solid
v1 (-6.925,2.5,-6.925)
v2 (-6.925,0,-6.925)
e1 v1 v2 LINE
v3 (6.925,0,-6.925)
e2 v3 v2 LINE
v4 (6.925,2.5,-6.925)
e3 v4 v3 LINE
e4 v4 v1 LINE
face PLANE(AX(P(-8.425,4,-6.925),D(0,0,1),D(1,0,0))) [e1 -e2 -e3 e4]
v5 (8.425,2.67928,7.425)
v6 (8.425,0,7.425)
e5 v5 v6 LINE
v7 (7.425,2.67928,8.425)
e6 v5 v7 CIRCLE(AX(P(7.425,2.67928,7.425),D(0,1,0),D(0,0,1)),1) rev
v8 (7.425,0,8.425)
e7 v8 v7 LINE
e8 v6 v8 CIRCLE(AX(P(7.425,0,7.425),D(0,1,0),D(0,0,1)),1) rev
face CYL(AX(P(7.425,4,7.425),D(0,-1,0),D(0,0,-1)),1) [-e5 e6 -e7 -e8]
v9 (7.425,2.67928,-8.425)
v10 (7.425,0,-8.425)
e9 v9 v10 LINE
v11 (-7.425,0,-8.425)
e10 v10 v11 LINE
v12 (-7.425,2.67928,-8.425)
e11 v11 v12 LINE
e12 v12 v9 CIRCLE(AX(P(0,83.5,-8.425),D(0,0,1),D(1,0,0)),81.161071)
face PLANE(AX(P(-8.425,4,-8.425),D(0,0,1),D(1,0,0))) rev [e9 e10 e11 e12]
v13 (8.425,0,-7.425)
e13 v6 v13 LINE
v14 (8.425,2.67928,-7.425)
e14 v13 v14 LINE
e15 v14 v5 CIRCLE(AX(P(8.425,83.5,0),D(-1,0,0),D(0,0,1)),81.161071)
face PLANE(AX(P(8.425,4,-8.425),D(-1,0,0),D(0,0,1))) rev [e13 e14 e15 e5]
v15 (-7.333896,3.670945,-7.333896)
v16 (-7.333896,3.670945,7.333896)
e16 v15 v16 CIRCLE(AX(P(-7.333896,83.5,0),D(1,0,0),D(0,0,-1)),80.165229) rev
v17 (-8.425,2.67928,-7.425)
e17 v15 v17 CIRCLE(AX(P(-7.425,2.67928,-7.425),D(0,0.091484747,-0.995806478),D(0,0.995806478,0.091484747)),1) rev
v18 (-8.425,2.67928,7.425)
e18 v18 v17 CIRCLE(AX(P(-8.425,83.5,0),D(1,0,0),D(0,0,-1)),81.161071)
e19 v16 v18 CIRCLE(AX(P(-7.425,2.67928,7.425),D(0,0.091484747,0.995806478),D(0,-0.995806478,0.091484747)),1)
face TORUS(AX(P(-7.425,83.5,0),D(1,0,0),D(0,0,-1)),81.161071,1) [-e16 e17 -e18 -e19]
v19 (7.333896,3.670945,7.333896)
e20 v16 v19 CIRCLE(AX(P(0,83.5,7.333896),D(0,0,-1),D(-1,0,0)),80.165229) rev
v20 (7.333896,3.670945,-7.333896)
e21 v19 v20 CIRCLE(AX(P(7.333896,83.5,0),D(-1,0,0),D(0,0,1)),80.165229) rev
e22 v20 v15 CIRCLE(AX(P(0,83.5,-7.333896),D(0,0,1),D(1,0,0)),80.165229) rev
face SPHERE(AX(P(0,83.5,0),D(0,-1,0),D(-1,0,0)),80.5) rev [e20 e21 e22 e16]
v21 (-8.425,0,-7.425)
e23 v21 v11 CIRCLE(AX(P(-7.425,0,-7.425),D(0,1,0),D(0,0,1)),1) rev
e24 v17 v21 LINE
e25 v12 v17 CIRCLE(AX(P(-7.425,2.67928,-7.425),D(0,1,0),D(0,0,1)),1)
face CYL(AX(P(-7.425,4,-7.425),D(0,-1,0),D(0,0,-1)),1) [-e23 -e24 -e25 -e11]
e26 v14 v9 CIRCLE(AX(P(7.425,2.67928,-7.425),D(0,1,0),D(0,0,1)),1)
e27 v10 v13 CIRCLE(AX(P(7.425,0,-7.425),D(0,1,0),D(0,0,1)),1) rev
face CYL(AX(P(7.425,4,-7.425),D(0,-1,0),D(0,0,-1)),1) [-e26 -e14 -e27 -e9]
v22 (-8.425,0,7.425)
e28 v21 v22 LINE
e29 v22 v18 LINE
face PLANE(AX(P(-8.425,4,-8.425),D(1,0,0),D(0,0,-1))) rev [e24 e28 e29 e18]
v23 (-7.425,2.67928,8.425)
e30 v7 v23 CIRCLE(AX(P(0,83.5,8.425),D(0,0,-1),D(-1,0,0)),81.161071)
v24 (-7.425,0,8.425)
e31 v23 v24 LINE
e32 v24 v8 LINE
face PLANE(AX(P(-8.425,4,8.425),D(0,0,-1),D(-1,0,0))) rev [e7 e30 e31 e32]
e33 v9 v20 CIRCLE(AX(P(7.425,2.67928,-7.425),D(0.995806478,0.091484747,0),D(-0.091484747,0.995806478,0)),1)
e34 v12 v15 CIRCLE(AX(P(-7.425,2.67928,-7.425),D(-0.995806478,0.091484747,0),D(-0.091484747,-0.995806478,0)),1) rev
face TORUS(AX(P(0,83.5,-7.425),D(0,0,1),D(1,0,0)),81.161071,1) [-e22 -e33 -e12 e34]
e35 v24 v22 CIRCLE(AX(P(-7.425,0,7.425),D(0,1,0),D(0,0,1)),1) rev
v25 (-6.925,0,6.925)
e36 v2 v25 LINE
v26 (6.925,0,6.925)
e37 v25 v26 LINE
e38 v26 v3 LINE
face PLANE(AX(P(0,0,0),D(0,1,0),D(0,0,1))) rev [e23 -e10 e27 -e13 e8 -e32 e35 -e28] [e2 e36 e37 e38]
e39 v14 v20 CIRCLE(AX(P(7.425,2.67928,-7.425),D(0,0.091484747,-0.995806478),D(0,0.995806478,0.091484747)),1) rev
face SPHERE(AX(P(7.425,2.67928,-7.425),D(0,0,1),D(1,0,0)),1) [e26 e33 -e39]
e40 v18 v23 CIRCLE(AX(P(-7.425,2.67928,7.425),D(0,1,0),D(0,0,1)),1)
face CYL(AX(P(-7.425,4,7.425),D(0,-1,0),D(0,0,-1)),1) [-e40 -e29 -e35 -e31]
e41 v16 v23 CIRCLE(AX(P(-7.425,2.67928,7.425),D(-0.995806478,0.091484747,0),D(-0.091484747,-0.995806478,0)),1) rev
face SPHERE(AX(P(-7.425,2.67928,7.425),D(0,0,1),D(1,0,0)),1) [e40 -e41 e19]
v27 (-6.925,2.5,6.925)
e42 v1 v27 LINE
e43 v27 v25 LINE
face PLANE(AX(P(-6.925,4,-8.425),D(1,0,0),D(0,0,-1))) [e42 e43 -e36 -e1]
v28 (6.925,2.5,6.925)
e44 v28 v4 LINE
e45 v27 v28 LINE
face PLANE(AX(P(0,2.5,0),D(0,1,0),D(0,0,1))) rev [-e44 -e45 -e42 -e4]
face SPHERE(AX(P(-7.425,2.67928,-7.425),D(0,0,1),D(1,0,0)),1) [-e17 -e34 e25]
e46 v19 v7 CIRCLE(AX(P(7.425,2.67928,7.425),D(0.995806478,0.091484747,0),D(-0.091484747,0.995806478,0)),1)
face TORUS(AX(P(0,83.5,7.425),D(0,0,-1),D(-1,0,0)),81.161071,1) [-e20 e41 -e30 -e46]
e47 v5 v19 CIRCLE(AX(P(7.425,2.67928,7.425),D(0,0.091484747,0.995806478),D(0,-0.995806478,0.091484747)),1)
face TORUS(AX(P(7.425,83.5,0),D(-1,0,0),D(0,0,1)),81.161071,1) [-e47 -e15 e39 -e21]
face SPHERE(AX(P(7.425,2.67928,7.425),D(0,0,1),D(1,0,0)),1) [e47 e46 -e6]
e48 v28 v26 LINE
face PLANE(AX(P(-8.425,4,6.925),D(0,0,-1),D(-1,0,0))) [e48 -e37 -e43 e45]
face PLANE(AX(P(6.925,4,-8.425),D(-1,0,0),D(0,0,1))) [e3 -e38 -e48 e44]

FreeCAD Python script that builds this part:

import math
import FreeCAD as App
import Part
import Sketcher
from FreeCAD import Vector
Q = App.Units.Quantity


def edges_at(feature, points):
    """Names of the edges that pass closest to the given points."""
    edges = feature.Shape.Edges
    near = lambda p: min(range(len(edges)), key=lambda i: edges[i].distToShape(Part.Vertex(*p))[0])
    return sorted({f"Edge{near(p) + 1}" for p in points})


def faces_at(feature, points):
    """Names of the faces that lie closest to the given points."""
    faces = feature.Shape.Faces
    near = lambda p: min(range(len(faces)), key=lambda i: faces[i].distToShape(Part.Vertex(*p))[0])
    return sorted({f"Face{near(p) + 1}" for p in points})

doc = App.newDocument("Part")
params = doc.addObject("Spreadsheet::Sheet", "Params")
for row, (alias, value) in enumerate([
    ("sketch1_width", "16.85 mm"),
    ("pad1_length", "4 mm"),
    ("thickness_wall", "1.5 mm"),
    ("sketch2_radius", "80.5 mm"),
    ("groove_angle", "360 deg"),
    ("fillet_radius", "1 mm"),
], start=1):
    params.set(f"A{row}", alias)
    params.set(f"B{row}", "=" + value)
    params.setAlias(f"B{row}", alias)

body = doc.addObject("PartDesign::Body", "Body")

# Sketch on XZ plane
sketch1 = body.newObject("Sketcher::SketchObject", "Sketch")
sketch1.AttachmentSupport = (doc.getObject("XZ_Plane"), [""])
sketch1.MapMode = "FlatFace"
sketch1.addGeometry(Part.LineSegment(Vector(-8, -8, 0), Vector(-8, 8, 0)), False)
sketch1.addGeometry(Part.LineSegment(Vector(-8, 8, 0), Vector(8, 8, 0)), False)
sketch1.addGeometry(Part.LineSegment(Vector(8, 8, 0), Vector(8, -8, 0)), False)
sketch1.addGeometry(Part.LineSegment(Vector(8, -8, 0), Vector(-8, -8, 0)), False)
sketch1.addConstraint(Sketcher.Constraint("Coincident", 0, 2, 1, 1))
sketch1.addConstraint(Sketcher.Constraint("Coincident", 1, 2, 2, 1))
sketch1.addConstraint(Sketcher.Constraint("Coincident", 2, 2, 3, 1))
sketch1.addConstraint(Sketcher.Constraint("Coincident", 3, 2, 0, 1))
sketch1.addConstraint(Sketcher.Constraint("Vertical", 0))
sketch1.addConstraint(Sketcher.Constraint("Horizontal", 1))
sketch1.addConstraint(Sketcher.Constraint("Vertical", 2))
sketch1.addConstraint(Sketcher.Constraint("Horizontal", 3))
sketch1.addConstraint(Sketcher.Constraint("Symmetric", 0, 2, 2, 2, -1, 1))
sketch1.addConstraint(Sketcher.Constraint("Equal", 3, 0))
sketch1.addConstraint(Sketcher.Constraint("DistanceX", 1, 1, 1, 2, Q("16.85 mm")))
sketch1.setExpression("Constraints[10]", "Params.sketch1_width")
pad1 = body.newObject("PartDesign::Pad", "Pad")
pad1.Profile = sketch1
pad1.setExpression("Length", "Params.pad1_length")
pad1.Reversed = True
doc.recompute()

thickness = body.newObject("PartDesign::Thickness", "Thickness")
thickness.Base = (pad1, faces_at(pad1, [(0, 0, 0)]))
thickness.setExpression("Value", "Params.thickness_wall")
thickness.Reversed = True
thickness.Join = "Intersection"

# Sketch on XY plane
sketch2 = body.newObject("Sketcher::SketchObject", "Sketch001")
sketch2.AttachmentSupport = (doc.getObject("XY_Plane"), [""])
sketch2.MapMode = "FlatFace"
sketch2.addGeometry(Part.LineSegment(Vector(0, 164, 0), Vector(0, 3, 0)), False)
sketch2.addGeometry(Part.ArcOfCircle(Part.Circle(Vector(0, 84, 0), Vector(0, 0, 1), 80), math.radians(-90), math.radians(90)), False)
sketch2.addConstraint(Sketcher.Constraint("Coincident", 0, 1, 1, 2))
sketch2.addConstraint(Sketcher.Constraint("Coincident", 1, 1, 0, 2))
sketch2.addConstraint(Sketcher.Constraint("Vertical", 0))
sketch2.addConstraint(Sketcher.Constraint("PointOnObject", 1, 3, -2))
sketch2.addConstraint(Sketcher.Constraint("PointOnObject", 0, 1, -2))
sketch2.addConstraint(Sketcher.Constraint("Radius", 1, Q("80.5 mm")))
sketch2.addConstraint(Sketcher.Constraint("DistanceY", -1, 1, 0, 1, Q("164 mm")))
sketch2.setExpression("Constraints[5]", "Params.sketch2_radius")
groove = body.newObject("PartDesign::Groove", "Groove")
groove.Profile = sketch2
groove.ReferenceAxis = (sketch2, ["V_Axis"])
groove.setExpression("Angle", "Params.groove_angle")
doc.recompute()

fillet = body.newObject("PartDesign::Fillet", "Fillet")
fillet.Base = (groove, edges_at(groove, [
    (8.425, 1.943, 8.425),
    (-8.425, 1.943, 8.425),
    (0, 3.442, 8.425),
    (-8.425, 1.943, -8.425),
    (8.425, 1.943, -8.425),
    (0, 3.442, -8.425),
    (8.425, 3.553, 4.218),
    (-8.425, 3.442, 0),
]))
fillet.setExpression("Radius", "Params.fillet_radius")

doc.recompute()
